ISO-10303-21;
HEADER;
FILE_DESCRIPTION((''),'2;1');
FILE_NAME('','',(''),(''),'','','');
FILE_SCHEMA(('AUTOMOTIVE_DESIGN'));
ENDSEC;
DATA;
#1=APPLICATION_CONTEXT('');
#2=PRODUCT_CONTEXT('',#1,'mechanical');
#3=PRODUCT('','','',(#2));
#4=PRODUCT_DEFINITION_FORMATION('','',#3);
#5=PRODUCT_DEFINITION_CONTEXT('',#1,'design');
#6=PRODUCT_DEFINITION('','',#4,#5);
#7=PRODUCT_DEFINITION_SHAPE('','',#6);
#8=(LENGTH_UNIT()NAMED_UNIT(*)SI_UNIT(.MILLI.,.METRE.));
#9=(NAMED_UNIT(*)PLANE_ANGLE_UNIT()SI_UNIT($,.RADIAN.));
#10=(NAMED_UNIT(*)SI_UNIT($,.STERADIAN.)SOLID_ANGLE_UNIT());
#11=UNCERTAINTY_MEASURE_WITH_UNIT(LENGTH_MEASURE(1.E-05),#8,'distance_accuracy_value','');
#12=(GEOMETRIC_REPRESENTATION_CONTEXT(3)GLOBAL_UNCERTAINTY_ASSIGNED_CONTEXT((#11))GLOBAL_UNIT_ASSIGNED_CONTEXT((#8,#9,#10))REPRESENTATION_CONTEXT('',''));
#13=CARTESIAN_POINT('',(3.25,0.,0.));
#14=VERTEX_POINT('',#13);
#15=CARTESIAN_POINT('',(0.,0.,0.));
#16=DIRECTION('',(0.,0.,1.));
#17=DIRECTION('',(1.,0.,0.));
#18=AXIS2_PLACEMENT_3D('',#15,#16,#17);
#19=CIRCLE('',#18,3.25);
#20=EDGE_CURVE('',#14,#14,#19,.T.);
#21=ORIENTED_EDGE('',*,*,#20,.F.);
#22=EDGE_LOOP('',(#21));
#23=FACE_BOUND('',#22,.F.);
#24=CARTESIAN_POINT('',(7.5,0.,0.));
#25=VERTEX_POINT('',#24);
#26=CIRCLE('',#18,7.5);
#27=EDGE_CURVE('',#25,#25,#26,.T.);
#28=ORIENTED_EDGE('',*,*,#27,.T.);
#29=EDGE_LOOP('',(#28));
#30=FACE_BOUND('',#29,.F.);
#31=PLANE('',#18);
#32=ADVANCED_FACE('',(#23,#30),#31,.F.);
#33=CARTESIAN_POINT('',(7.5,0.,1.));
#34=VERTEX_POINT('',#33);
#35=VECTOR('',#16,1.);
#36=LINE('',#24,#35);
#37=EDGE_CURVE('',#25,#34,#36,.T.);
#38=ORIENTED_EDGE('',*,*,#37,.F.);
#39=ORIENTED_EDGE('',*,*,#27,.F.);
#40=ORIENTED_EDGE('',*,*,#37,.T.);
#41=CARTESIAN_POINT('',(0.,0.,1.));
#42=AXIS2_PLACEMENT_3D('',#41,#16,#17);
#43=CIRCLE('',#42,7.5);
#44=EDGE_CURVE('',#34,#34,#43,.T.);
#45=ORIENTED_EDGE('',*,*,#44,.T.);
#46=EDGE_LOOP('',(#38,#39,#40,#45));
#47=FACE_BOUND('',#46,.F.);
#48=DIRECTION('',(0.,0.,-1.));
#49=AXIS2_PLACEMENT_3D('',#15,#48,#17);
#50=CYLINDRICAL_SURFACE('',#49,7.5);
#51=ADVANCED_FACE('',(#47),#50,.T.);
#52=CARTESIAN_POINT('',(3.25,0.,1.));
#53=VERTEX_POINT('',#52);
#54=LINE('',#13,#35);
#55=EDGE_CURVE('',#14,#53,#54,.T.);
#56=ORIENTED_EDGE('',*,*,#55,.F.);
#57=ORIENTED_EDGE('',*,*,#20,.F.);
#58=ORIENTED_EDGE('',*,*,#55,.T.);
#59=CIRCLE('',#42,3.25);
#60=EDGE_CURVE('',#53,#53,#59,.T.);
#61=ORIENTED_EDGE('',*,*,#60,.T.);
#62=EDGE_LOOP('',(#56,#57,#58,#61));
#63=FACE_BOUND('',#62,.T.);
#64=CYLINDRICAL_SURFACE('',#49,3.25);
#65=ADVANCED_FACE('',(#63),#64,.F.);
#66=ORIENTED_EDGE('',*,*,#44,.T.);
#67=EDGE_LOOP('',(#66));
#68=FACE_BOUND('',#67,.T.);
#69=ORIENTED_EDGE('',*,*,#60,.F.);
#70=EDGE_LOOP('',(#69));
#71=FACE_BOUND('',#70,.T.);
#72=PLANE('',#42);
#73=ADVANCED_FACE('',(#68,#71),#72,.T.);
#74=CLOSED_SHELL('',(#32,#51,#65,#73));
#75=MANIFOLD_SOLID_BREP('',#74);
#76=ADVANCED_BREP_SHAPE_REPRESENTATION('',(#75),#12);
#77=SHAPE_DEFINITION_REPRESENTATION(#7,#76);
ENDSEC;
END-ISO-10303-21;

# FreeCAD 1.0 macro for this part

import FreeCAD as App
import Part
import Sketcher
from FreeCAD import Vector

doc = App.newDocument("Part")
body = doc.addObject("PartDesign::Body", "Body")

sketch1 = doc.addObject("Sketcher::SketchObject", "Sketch")
body.addObject(sketch1)
sketch1.AttachmentSupport = (doc.XY_Plane, [""])
sketch1.MapMode = "FlatFace"
sketch1.addGeometry(Part.Circle(Vector(0, 0, 0), Vector(0, 0, 1), 7.5), False)
sketch1.addGeometry(Part.Circle(Vector(0, 0, 0), Vector(0, 0, 1), 3.2), False)
sketch1.addConstraint(Sketcher.Constraint("Coincident", 0, 3, -1, 1))
sketch1.addConstraint(Sketcher.Constraint("Coincident", 1, 3, -1, 1))
sketch1.addConstraint(Sketcher.Constraint("Diameter", 0, 15.0))
sketch1.addConstraint(Sketcher.Constraint("Diameter", 1, 6.5))
pad1 = doc.addObject("PartDesign::Pad", "Pad")
body.addObject(pad1)
pad1.Profile = sketch1
pad1.Length = 1

doc.recompute()
